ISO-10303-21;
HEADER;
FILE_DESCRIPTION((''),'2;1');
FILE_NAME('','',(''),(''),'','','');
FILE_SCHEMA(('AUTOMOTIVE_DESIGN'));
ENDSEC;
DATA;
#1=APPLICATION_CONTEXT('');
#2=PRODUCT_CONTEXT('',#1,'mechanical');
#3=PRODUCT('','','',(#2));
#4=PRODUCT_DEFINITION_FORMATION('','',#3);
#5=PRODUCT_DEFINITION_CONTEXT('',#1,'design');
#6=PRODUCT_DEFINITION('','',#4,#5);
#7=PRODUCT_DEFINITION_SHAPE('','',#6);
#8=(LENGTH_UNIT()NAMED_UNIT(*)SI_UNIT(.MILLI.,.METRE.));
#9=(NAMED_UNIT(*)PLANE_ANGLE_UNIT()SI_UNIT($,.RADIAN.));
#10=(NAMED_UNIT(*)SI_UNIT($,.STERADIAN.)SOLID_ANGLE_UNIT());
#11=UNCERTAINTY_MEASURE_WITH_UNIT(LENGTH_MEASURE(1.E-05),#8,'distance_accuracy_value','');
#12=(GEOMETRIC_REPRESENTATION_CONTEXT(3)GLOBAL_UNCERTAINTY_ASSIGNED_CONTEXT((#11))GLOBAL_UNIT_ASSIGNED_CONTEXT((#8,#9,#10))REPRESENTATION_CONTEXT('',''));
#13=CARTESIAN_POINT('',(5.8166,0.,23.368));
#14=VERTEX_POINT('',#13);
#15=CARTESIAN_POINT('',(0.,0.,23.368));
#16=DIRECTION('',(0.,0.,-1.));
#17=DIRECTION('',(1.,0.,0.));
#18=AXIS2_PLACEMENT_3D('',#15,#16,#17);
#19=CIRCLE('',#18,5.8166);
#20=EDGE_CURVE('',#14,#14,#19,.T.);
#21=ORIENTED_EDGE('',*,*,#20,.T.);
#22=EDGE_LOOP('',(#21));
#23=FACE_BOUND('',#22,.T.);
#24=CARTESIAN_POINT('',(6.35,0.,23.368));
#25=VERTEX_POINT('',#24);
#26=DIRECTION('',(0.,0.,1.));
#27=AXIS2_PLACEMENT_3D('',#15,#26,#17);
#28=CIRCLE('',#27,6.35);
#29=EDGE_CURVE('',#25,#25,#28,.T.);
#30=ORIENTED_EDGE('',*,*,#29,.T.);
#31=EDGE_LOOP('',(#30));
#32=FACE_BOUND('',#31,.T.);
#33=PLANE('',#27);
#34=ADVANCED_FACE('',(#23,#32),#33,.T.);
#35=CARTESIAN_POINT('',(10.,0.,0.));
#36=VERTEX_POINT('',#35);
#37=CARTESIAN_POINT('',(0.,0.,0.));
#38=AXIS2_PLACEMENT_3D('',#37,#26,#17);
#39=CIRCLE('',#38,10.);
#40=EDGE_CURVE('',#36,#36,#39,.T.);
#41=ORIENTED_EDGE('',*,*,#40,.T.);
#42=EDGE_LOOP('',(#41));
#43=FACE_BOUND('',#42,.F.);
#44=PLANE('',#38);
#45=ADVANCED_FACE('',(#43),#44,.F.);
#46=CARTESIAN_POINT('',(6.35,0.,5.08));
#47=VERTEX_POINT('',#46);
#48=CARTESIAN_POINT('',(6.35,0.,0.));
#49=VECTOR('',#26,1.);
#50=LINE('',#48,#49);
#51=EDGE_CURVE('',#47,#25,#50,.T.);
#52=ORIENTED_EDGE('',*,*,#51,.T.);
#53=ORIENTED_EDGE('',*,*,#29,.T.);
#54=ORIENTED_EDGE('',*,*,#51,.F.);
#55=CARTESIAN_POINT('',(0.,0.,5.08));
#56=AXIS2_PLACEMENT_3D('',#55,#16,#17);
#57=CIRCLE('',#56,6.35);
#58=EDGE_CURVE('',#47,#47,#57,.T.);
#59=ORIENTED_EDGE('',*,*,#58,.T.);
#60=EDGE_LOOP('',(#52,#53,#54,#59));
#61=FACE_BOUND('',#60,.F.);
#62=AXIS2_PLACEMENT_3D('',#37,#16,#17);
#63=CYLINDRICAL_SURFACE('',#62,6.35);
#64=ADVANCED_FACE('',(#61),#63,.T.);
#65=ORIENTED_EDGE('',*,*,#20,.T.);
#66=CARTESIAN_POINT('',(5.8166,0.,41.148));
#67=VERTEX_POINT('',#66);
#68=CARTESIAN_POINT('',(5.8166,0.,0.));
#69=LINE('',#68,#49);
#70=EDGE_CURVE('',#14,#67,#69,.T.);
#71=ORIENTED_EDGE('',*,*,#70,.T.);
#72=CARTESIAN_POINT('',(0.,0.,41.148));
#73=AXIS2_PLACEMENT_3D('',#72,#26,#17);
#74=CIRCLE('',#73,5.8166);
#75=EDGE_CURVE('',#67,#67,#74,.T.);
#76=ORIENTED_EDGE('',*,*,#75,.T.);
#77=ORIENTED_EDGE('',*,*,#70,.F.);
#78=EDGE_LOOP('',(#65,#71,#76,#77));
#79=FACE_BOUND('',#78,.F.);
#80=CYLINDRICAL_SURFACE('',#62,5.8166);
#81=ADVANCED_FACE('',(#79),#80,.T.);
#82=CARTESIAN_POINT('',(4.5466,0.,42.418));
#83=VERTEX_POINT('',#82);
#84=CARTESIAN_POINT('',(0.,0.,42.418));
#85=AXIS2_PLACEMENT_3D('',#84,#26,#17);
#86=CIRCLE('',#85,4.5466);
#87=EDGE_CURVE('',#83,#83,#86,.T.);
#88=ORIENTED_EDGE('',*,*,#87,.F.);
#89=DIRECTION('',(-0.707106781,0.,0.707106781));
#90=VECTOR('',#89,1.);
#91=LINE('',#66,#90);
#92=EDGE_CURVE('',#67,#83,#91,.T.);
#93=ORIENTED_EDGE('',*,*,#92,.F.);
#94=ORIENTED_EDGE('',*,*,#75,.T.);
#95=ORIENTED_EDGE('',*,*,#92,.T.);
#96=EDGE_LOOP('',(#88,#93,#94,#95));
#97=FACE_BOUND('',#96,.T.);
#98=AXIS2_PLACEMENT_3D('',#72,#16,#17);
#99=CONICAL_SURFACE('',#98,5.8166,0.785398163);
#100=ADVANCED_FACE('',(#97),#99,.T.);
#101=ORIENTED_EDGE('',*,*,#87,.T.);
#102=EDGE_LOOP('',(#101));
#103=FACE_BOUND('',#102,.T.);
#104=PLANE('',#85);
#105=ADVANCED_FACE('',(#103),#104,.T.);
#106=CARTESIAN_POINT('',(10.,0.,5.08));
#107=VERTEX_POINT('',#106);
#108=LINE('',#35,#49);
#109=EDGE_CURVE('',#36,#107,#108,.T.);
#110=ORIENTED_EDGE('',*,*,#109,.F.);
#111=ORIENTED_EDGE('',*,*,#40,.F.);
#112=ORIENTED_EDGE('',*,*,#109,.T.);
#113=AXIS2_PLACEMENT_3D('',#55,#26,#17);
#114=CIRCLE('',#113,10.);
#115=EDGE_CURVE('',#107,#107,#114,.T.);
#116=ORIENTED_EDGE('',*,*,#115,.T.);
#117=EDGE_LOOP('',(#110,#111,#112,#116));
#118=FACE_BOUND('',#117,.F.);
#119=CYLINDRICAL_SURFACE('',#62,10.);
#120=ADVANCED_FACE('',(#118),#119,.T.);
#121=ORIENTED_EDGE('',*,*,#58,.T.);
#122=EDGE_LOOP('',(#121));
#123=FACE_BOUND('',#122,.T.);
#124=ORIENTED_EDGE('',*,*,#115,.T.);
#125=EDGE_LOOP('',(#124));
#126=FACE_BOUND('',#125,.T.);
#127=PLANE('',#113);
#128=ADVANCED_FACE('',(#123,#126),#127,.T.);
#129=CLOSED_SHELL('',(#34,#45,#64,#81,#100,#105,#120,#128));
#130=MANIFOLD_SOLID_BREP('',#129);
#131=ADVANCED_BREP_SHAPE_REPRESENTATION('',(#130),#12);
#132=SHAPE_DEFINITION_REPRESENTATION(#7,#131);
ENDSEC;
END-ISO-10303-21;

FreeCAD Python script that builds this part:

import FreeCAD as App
import Part
import Sketcher
Q = App.Units.Quantity


def edges_at(feature, points):
    """Names of the edges that pass closest to the given points."""
    edges = feature.Shape.Edges
    near = lambda p: min(range(len(edges)), key=lambda i: edges[i].distToShape(Part.Vertex(*p))[0])
    return sorted({f"Edge{near(p) + 1}" for p in points})

doc = App.newDocument("Part")
body = doc.addObject("PartDesign::Body", "Body")

# Sketch on XY plane
sketch1 = body.newObject("Sketcher::SketchObject", "Sketch")
sketch1.AttachmentSupport = (doc.getObject("XY_Plane"), [""])
sketch1.MapMode = "FlatFace"
sketch1.addGeometry(Part.Circle(App.Vector(0, 0, 0), App.Vector(0, 0, 1), 10), False)
sketch1.addConstraint([
    Sketcher.Constraint("Coincident", 0, 3, -1, 1),
    Sketcher.Constraint("Diameter", 0, Q("20 mm")),
])
pad1 = body.newObject("PartDesign::Pad", "Pad")
pad1.Profile = sketch1
pad1.Length = Q("0.2 in")

# Sketch on XY plane
sketch2 = body.newObject("Sketcher::SketchObject", "Sketch001")
sketch2.AttachmentSupport = (doc.getObject("XY_Plane"), [""])
sketch2.MapMode = "FlatFace"
sketch2.addGeometry(Part.Circle(App.Vector(0, 0, 0), App.Vector(0, 0, 1), 6.35), False)
sketch2.addConstraint([
    Sketcher.Constraint("Coincident", 0, 3, -1, 1),
    Sketcher.Constraint("Diameter", 0, Q("0.5 in")),
])
pad2 = body.newObject("PartDesign::Pad", "Pad001")
pad2.Profile = sketch2
pad2.Length = Q("0.92 in")

# Sketch on XY plane
sketch3 = body.newObject("Sketcher::SketchObject", "Sketch002")
sketch3.AttachmentSupport = (doc.getObject("XY_Plane"), [""])
sketch3.MapMode = "FlatFace"
sketch3.addGeometry(Part.Circle(App.Vector(0, 0, 0), App.Vector(0, 0, 1), 5.8166), False)
sketch3.addConstraint([
    Sketcher.Constraint("Coincident", 0, 3, -1, 1),
    Sketcher.Constraint("Diameter", 0, Q("0.458 in")),
])
pad3 = body.newObject("PartDesign::Pad", "Pad002")
pad3.Profile = sketch3
pad3.Length = Q("1.67 in")
doc.recompute()

chamfer = body.newObject("PartDesign::Chamfer", "Chamfer")
chamfer.Base = (pad3, edges_at(pad3, [(-5.817, 0, 42.418)]))
chamfer.Size = Q("0.05 in")

doc.recompute()
